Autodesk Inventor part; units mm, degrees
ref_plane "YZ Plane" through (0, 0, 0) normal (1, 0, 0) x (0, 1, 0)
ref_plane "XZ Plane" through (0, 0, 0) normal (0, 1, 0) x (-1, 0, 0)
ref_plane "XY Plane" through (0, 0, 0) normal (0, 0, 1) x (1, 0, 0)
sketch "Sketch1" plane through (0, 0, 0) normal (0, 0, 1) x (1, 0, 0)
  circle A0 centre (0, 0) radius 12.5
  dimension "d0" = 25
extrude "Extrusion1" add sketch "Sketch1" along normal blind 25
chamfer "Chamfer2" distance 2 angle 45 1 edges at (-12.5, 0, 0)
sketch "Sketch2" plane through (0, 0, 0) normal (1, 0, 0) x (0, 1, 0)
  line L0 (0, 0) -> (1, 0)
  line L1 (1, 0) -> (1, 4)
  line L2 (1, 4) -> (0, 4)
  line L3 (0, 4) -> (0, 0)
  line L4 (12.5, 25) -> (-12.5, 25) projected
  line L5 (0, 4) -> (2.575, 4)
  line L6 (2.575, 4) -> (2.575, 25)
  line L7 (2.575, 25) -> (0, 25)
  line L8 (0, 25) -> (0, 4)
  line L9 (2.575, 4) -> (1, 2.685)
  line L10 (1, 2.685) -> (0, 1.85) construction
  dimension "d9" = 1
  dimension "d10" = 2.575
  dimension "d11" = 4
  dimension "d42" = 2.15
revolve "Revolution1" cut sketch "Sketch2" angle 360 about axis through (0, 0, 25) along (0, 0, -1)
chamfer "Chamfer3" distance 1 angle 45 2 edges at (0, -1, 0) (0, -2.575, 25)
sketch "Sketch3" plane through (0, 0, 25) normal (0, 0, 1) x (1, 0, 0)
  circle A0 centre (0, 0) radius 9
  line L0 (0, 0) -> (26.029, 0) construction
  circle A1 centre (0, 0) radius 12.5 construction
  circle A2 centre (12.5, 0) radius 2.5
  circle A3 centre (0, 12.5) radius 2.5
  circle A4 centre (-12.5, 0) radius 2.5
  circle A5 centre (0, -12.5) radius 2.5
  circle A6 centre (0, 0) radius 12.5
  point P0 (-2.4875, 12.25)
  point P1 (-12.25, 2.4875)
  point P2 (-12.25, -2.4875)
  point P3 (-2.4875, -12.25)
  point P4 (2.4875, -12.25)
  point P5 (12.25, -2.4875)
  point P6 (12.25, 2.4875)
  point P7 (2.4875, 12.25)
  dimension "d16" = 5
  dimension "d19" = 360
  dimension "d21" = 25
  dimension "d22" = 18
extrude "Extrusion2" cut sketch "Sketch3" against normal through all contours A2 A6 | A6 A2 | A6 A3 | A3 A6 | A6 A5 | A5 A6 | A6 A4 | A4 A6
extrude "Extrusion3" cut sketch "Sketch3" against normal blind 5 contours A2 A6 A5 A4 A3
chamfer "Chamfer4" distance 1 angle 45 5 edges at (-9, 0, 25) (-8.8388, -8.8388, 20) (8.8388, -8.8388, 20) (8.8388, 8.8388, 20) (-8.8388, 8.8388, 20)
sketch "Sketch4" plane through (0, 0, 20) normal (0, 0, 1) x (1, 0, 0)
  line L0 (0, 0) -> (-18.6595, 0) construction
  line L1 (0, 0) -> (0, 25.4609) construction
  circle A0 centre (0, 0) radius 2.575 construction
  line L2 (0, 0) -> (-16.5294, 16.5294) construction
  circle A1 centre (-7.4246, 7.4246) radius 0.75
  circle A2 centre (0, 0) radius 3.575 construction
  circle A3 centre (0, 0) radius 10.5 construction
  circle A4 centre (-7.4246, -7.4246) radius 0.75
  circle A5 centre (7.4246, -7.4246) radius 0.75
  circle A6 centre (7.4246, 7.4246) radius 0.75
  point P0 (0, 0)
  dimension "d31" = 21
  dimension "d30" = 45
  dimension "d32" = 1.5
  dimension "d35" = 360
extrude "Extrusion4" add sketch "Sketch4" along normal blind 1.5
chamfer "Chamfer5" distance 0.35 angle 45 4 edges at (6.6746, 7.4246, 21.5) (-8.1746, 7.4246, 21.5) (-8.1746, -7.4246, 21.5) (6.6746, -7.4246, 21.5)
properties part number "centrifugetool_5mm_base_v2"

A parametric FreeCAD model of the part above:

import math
import FreeCAD as App
import Part
import Sketcher

V = App.Vector
Q = App.Units.Quantity


def edges_at(feature, points):
    """Names of the edges that pass closest to the given points."""
    edges = feature.Shape.Edges
    near = lambda p: min(range(len(edges)), key=lambda i: edges[i].distToShape(Part.Vertex(*p))[0])
    return sorted({f"Edge{near(p) + 1}" for p in points})

doc = App.newDocument("Part")
body = doc.addObject("PartDesign::Body", "Body")

sketch1 = body.newObject("Sketcher::SketchObject", "Sketch")
sketch1.AttachmentSupport = (doc.getObject("XY_Plane"), [""])
sketch1.MapMode = "FlatFace"
sketch1.addGeometry(Part.Circle(V(0, 0, 0), V(0, 0, 1), 12), False)
sketch1.addConstraint(Sketcher.Constraint("Coincident", 0, 3, -1, 1))
sketch1.addConstraint(Sketcher.Constraint("Diameter", 0, 25.0))
pad1 = body.newObject("PartDesign::Pad", "Pad")
pad1.Profile = sketch1
pad1.Length = 25
doc.recompute()

chamfer = body.newObject("PartDesign::Chamfer", "Chamfer")
chamfer.Base = (pad1, edges_at(pad1, [(-12.5, 0, 0)]))
chamfer.Size = 2

sketch2 = body.newObject("Sketcher::SketchObject", "Sketch001")
sketch2.AttachmentSupport = (doc.getObject("YZ_Plane"), [""])
sketch2.MapMode = "FlatFace"
sketch2.addGeometry(Part.LineSegment(V(0, 0, 0), V(1, 0, 0)), False)
sketch2.addGeometry(Part.LineSegment(V(1, 0, 0), V(1, 2.7, 0)), False)
sketch2.addGeometry(Part.LineSegment(V(1, 2.7, 0), V(2.6, 4, 0)), False)
sketch2.addGeometry(Part.LineSegment(V(2.6, 4, 0), V(2.6, 25, 0)), False)
sketch2.addGeometry(Part.LineSegment(V(2.6, 25, 0), V(0, 25, 0)), False)
sketch2.addGeometry(Part.LineSegment(V(0, 25, 0), V(0, 0, 0)), False)
sketch2.addConstraint(Sketcher.Constraint("Coincident", 0, 2, 1, 1))
sketch2.addConstraint(Sketcher.Constraint("Coincident", 1, 2, 2, 1))
sketch2.addConstraint(Sketcher.Constraint("Coincident", 2, 2, 3, 1))
sketch2.addConstraint(Sketcher.Constraint("Coincident", 3, 2, 4, 1))
sketch2.addConstraint(Sketcher.Constraint("Coincident", 4, 2, 5, 1))
sketch2.addConstraint(Sketcher.Constraint("Coincident", 5, 2, 0, 1))
sketch2.addConstraint(Sketcher.Constraint("Horizontal", 0))
sketch2.addConstraint(Sketcher.Constraint("Vertical", 1))
sketch2.addConstraint(Sketcher.Constraint("Vertical", 3))
sketch2.addConstraint(Sketcher.Constraint("Horizontal", 4))
sketch2.addConstraint(Sketcher.Constraint("Vertical", 5))
sketch2.addConstraint(Sketcher.Constraint("Coincident", 5, 2, -1, 1))
sketch2.addConstraint(Sketcher.Constraint("DistanceX", 0, 1, 0, 2, 1.0))
sketch2.addConstraint(Sketcher.Constraint("DistanceY", -1, 1, 2, 2, 4.0))
sketch2.addConstraint(Sketcher.Constraint("DistanceX", 4, 2, 4, 1, 2.575))
sketch2.addConstraint(Sketcher.Constraint("DistanceY", 3, 1, 3, 2, 21.0))
sketch2.addConstraint(Sketcher.Constraint("Angle", 2, Q("39.8592 deg")))
groove = body.newObject("PartDesign::Groove", "Groove")
groove.Profile = sketch2
groove.ReferenceAxis = (sketch2, ["V_Axis"])
groove.Angle = 360
doc.recompute()

chamfer2 = body.newObject("PartDesign::Chamfer", "Chamfer001")
chamfer2.Base = (groove, edges_at(groove, [(0, -1, 0), (0, -2.575, 25)]))
chamfer2.Size = 1

sketch3 = body.newObject("Sketcher::SketchObject", "Sketch002")
sketch3.AttachmentSupport = (doc.getObject("XY_Plane"), [""])
sketch3.MapMode = "FlatFace"
sketch3.AttachmentOffset = App.Placement(V(0, 0, 25), App.Rotation())
sketch3.addGeometry(Part.Circle(V(12.5, 0, 0), V(0, 0, 1), 2.5), False)
sketch3.addGeometry(Part.Circle(V(0, 12.5, 0), V(0, 0, 1), 2.5), False)
sketch3.addGeometry(Part.Circle(V(0, -12.5, 0), V(0, 0, 1), 2.5), False)
sketch3.addGeometry(Part.Circle(V(-12.5, 0, 0), V(0, 0, 1), 2.5), False)
sketch3.addConstraint(Sketcher.Constraint("Equal", 0, 1))
sketch3.addConstraint(Sketcher.Constraint("Equal", 1, 2))
sketch3.addConstraint(Sketcher.Constraint("Equal", 2, 3))
sketch3.addConstraint(Sketcher.Constraint("Symmetric", 1, 3, 2, 3, -1, 1))
sketch3.addConstraint(Sketcher.Constraint("Symmetric", 0, 3, 3, 3, -1, 1))
sketch3.addConstraint(Sketcher.Constraint("PointOnObject", 0, 3, -1))
sketch3.addConstraint(Sketcher.Constraint("PointOnObject", 1, 3, -2))
sketch3.addConstraint(Sketcher.Constraint("Diameter", 0, 5.0))
sketch3.addConstraint(Sketcher.Constraint("DistanceY", 2, 3, 1, 3, 25.0))
sketch3.addConstraint(Sketcher.Constraint("DistanceX", 3, 3, 0, 3, 25.0))
pocket1 = body.newObject("PartDesign::Pocket", "Pocket")
pocket1.Profile = sketch3
pocket1.Type = "ThroughAll"

sketch4 = body.newObject("Sketcher::SketchObject", "Sketch003")
sketch4.AttachmentSupport = (doc.getObject("XY_Plane"), [""])
sketch4.MapMode = "FlatFace"
sketch4.AttachmentOffset = App.Placement(V(0, 0, 25), App.Rotation())
sketch4.addGeometry(Part.ArcOfCircle(Part.Circle(V(12.5, 0, 0), V(0, 0, 1), 2.5), math.radians(96), math.radians(264)), False)
sketch4.addGeometry(Part.ArcOfCircle(Part.Circle(V(0, 0, 0), V(0, 0, 1), 12.5), math.radians(11), math.radians(79)), False)
sketch4.addGeometry(Part.ArcOfCircle(Part.Circle(V(0, 12.5, 0), V(0, 0, 1), 2.5), math.radians(-174), math.radians(-6)), False)
sketch4.addGeometry(Part.ArcOfCircle(Part.Circle(V(0, 0, 0), V(0, 0, 1), 12.5), math.radians(101), math.radians(169)), False)
sketch4.addGeometry(Part.ArcOfCircle(Part.Circle(V(-12.5, 0, 0), V(0, 0, 1), 2.5), math.radians(-84), math.radians(84)), False)
sketch4.addGeometry(Part.ArcOfCircle(Part.Circle(V(0, 0, 0), V(0, 0, 1), 12.5), math.radians(-169), math.radians(-101)), False)
sketch4.addGeometry(Part.ArcOfCircle(Part.Circle(V(0, -12.5, 0), V(0, 0, 1), 2.5), math.radians(6), math.radians(174)), False)
sketch4.addGeometry(Part.ArcOfCircle(Part.Circle(V(0, 0, 0), V(0, 0, 1), 12.5), math.radians(-79), math.radians(-11)), False)
sketch4.addGeometry(Part.Circle(V(0, 0, 0), V(0, 0, 1), 9), False)
sketch4.addConstraint(Sketcher.Constraint("Coincident", 0, 1, 1, 1))
sketch4.addConstraint(Sketcher.Constraint("Coincident", 1, 2, 2, 2))
sketch4.addConstraint(Sketcher.Constraint("Coincident", 2, 1, 3, 1))
sketch4.addConstraint(Sketcher.Constraint("Coincident", 3, 2, 4, 2))
sketch4.addConstraint(Sketcher.Constraint("Coincident", 4, 1, 5, 1))
sketch4.addConstraint(Sketcher.Constraint("Coincident", 5, 2, 6, 2))
sketch4.addConstraint(Sketcher.Constraint("Coincident", 6, 1, 7, 1))
sketch4.addConstraint(Sketcher.Constraint("Coincident", 7, 2, 0, 2))
sketch4.addConstraint(Sketcher.Constraint("Coincident", 1, 3, -1, 1))
sketch4.addConstraint(Sketcher.Constraint("Coincident", 3, 3, -1, 1))
sketch4.addConstraint(Sketcher.Constraint("Coincident", 5, 3, -1, 1))
sketch4.addConstraint(Sketcher.Constraint("Coincident", 7, 3, -1, 1))
sketch4.addConstraint(Sketcher.Constraint("Coincident", 8, 3, -1, 1))
sketch4.addConstraint(Sketcher.Constraint("Equal", 0, 2))
sketch4.addConstraint(Sketcher.Constraint("Equal", 1, 3))
sketch4.addConstraint(Sketcher.Constraint("Equal", 2, 4))
sketch4.addConstraint(Sketcher.Constraint("Equal", 3, 5))
sketch4.addConstraint(Sketcher.Constraint("Equal", 4, 6))
sketch4.addConstraint(Sketcher.Constraint("Equal", 5, 7))
sketch4.addConstraint(Sketcher.Constraint("Symmetric", 0, 3, 4, 3, -1, 1))
sketch4.addConstraint(Sketcher.Constraint("Symmetric", 2, 3, 6, 3, -1, 1))
sketch4.addConstraint(Sketcher.Constraint("PointOnObject", 0, 3, -1))
sketch4.addConstraint(Sketcher.Constraint("PointOnObject", 2, 3, -2))
sketch4.addConstraint(Sketcher.Constraint("Diameter", 8, 18.0))
sketch4.addConstraint(Sketcher.Constraint("Radius", 0, 2.5))
sketch4.addConstraint(Sketcher.Constraint("Radius", 1, 12.5))
sketch4.addConstraint(Sketcher.Constraint("DistanceX", 4, 3, 0, 3, 25.0))
sketch4.addConstraint(Sketcher.Constraint("DistanceY", -1, 1, 2, 3, 12.5))
pocket2 = body.newObject("PartDesign::Pocket", "Pocket001")
pocket2.Profile = sketch4
pocket2.Length = 5
doc.recompute()

chamfer3 = body.newObject("PartDesign::Chamfer", "Chamfer002")
chamfer3.Base = (pocket2, edges_at(pocket2, [
    (-9, 0, 25),
    (-8.839, -8.839, 20),
    (8.839, -8.839, 20),
    (8.839, 8.839, 20),
    (-8.839, 8.839, 20),
]))
chamfer3.Size = 1

sketch5 = body.newObject("Sketcher::SketchObject", "Sketch004")
sketch5.AttachmentSupport = (doc.getObject("XY_Plane"), [""])
sketch5.MapMode = "FlatFace"
sketch5.AttachmentOffset = App.Placement(V(0, 0, 20), App.Rotation())
sketch5.addGeometry(Part.Circle(V(-7.4, 7.4, 0), V(0, 0, 1), 0.8), False)
sketch5.addGeometry(Part.Circle(V(-7.4, -7.4, 0), V(0, 0, 1), 0.8), False)
sketch5.addGeometry(Part.Circle(V(7.4, -7.4, 0), V(0, 0, 1), 0.8), False)
sketch5.addGeometry(Part.Circle(V(7.4, 7.4, 0), V(0, 0, 1), 0.8), False)
sketch5.addConstraint(Sketcher.Constraint("Equal", 0, 1))
sketch5.addConstraint(Sketcher.Constraint("Equal", 1, 2))
sketch5.addConstraint(Sketcher.Constraint("Equal", 2, 3))
sketch5.addConstraint(Sketcher.Constraint("Symmetric", 0, 3, 2, 3, -1, 1))
sketch5.addConstraint(Sketcher.Constraint("Symmetric", 1, 3, 3, 3, -1, 1))
sketch5.addConstraint(Sketcher.Constraint("Symmetric", 1, 3, 2, 3, -2))
sketch5.addConstraint(Sketcher.Constraint("Diameter", 0, 1.5))
sketch5.addConstraint(Sketcher.Constraint("DistanceX", 0, 3, -1, 1, 7.4246))
sketch5.addConstraint(Sketcher.Constraint("DistanceY", -1, 1, 0, 3, 7.4246))
pad2 = body.newObject("PartDesign::Pad", "Pad001")
pad2.Profile = sketch5
pad2.Length = 1.5
doc.recompute()

chamfer4 = body.newObject("PartDesign::Chamfer", "Chamfer003")
chamfer4.Base = (pad2, edges_at(pad2, [
    (6.675, 7.425, 21.5),
    (-8.175, 7.425, 21.5),
    (-8.175, -7.425, 21.5),
    (6.675, -7.425, 21.5),
]))
chamfer4.Size = 0.35

doc.recompute()
